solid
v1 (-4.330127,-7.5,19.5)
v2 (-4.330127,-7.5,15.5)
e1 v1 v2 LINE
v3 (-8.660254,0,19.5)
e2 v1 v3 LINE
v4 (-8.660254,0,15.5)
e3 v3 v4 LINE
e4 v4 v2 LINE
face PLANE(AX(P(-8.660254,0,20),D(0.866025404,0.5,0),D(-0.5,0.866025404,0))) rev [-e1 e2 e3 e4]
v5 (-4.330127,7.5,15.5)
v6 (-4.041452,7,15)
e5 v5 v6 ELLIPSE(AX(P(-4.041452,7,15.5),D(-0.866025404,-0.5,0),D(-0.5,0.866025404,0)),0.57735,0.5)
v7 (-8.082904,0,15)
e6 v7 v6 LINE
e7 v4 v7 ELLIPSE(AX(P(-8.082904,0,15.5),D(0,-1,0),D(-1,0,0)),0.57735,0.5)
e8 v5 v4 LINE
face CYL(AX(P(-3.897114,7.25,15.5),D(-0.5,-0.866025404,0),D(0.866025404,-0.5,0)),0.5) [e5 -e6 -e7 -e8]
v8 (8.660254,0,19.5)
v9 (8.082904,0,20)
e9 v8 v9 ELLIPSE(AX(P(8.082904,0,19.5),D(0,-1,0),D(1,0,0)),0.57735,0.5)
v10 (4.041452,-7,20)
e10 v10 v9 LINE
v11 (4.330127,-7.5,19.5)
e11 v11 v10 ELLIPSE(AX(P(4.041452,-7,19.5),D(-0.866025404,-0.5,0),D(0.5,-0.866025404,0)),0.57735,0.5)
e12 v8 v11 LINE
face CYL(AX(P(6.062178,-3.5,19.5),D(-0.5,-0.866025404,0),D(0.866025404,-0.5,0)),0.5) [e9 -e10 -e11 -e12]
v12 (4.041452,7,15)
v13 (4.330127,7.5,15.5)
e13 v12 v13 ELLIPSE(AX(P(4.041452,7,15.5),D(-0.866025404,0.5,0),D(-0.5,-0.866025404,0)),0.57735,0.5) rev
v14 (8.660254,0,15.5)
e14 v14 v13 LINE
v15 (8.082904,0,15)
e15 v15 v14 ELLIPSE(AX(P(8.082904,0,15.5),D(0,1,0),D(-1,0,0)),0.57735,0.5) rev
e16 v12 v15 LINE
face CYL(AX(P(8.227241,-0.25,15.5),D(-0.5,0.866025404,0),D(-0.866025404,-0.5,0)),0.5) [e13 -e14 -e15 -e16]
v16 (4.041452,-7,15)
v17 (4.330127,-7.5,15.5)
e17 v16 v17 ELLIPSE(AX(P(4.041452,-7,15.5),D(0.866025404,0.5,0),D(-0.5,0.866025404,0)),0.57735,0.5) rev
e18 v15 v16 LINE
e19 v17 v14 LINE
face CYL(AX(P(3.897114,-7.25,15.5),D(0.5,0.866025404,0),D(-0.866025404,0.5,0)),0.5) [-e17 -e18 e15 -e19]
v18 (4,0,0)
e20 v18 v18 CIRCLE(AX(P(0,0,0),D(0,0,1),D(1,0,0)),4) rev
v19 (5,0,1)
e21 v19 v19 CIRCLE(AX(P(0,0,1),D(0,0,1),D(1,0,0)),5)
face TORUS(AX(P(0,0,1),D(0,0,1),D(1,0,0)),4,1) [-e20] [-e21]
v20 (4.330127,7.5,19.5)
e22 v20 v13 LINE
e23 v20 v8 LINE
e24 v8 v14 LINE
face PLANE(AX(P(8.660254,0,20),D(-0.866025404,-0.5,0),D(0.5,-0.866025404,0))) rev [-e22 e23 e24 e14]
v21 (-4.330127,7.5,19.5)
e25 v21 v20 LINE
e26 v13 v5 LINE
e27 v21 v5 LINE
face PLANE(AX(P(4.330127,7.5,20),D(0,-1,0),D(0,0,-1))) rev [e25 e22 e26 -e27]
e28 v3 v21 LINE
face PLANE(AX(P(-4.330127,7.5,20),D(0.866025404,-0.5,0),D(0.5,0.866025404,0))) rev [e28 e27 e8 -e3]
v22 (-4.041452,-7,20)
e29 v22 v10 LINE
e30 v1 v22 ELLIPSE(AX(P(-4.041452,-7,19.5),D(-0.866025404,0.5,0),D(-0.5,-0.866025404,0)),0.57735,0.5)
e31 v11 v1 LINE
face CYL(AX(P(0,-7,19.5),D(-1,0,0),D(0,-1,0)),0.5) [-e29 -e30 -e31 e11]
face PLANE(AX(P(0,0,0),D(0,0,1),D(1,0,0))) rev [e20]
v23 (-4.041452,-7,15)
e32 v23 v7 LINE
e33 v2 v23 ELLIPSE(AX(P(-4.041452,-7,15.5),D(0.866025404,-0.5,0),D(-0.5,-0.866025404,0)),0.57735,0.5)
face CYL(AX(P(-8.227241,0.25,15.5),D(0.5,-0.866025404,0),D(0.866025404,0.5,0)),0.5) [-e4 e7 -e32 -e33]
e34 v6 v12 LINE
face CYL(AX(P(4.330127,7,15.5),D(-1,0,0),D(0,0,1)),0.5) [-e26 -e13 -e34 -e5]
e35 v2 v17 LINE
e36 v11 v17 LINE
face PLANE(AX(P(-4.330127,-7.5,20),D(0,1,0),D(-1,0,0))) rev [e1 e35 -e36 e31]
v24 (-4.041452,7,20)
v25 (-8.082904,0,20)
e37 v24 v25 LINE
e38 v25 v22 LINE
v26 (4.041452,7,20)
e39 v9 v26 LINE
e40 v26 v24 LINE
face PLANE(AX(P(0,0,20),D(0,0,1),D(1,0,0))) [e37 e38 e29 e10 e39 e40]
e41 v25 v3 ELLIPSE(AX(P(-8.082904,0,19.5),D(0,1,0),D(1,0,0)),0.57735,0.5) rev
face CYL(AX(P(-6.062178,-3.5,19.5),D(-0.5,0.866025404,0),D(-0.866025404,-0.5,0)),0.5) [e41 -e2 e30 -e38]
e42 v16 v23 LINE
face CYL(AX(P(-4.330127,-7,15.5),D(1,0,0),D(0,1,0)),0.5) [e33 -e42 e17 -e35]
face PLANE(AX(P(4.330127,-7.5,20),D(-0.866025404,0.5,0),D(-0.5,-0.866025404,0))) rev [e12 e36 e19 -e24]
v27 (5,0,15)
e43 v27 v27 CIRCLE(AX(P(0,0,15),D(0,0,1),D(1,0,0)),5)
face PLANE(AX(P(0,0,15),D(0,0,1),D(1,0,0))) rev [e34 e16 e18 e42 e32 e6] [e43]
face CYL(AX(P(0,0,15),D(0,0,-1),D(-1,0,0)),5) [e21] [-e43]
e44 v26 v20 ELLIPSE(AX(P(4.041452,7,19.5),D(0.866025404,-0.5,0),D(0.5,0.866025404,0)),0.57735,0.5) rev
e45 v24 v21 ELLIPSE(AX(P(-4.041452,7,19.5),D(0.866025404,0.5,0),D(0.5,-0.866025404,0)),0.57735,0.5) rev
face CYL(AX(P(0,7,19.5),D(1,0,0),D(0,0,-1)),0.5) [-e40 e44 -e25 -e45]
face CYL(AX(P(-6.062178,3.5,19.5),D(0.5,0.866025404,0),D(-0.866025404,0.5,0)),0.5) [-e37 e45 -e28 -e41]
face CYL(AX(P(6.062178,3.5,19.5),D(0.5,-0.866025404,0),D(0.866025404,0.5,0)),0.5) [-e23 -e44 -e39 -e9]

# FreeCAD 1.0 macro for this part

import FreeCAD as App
import Part
import Sketcher
from FreeCAD import Vector
Q = App.Units.Quantity


def edges_at(feature, points):
    """Names of the edges that pass closest to the given points."""
    edges = feature.Shape.Edges
    near = lambda p: min(range(len(edges)), key=lambda i: edges[i].distToShape(Part.Vertex(*p))[0])
    return sorted({f"Edge{near(p) + 1}" for p in points})

doc = App.newDocument("Part")
body = doc.addObject("PartDesign::Body", "Body")

# Sketch on XY plane
sketch1 = body.newObject("Sketcher::SketchObject", "Sketch")
sketch1.AttachmentSupport = (doc.getObject("XY_Plane"), [""])
sketch1.MapMode = "FlatFace"
sketch1.addGeometry(Part.Circle(Vector(0, 0, 0), Vector(0, 0, 1), 5), False)
sketch1.addConstraint(Sketcher.Constraint("Coincident", 0, 3, -1, 1))
sketch1.addConstraint(Sketcher.Constraint("Diameter", 0, 10.0))
pad1 = body.newObject("PartDesign::Pad", "Pad")
pad1.Profile = sketch1
pad1.Length = 15

# Sketch on XY plane
sketch2 = body.newObject("Sketcher::SketchObject", "Sketch001")
sketch2.AttachmentSupport = (doc.getObject("XY_Plane"), [""])
sketch2.MapMode = "FlatFace"
sketch2.AttachmentOffset = App.Placement(Vector(0, 0, 15), App.Rotation())
sketch2.addGeometry(Part.LineSegment(Vector(4, -8, 0), Vector(9, 0, 0)), False)
sketch2.addGeometry(Part.LineSegment(Vector(9, 0, 0), Vector(4, 8, 0)), False)
sketch2.addGeometry(Part.LineSegment(Vector(4, 8, 0), Vector(-4, 8, 0)), False)
sketch2.addGeometry(Part.LineSegment(Vector(-4, 8, 0), Vector(-9, 0, 0)), False)
sketch2.addGeometry(Part.LineSegment(Vector(-9, 0, 0), Vector(-4, -8, 0)), False)
sketch2.addGeometry(Part.LineSegment(Vector(-4, -8, 0), Vector(4, -8, 0)), False)
sketch2.addConstraint(Sketcher.Constraint("Coincident", 0, 2, 1, 1))
sketch2.addConstraint(Sketcher.Constraint("Coincident", 1, 2, 2, 1))
sketch2.addConstraint(Sketcher.Constraint("Coincident", 2, 2, 3, 1))
sketch2.addConstraint(Sketcher.Constraint("Coincident", 3, 2, 4, 1))
sketch2.addConstraint(Sketcher.Constraint("Coincident", 4, 2, 5, 1))
sketch2.addConstraint(Sketcher.Constraint("Coincident", 5, 2, 0, 1))
sketch2.addConstraint(Sketcher.Constraint("Horizontal", 2))
sketch2.addConstraint(Sketcher.Constraint("Horizontal", 5))
sketch2.addConstraint(Sketcher.Constraint("Symmetric", 0, 2, 3, 2, -1, 1))
sketch2.addConstraint(Sketcher.Constraint("Symmetric", 1, 2, 4, 2, -1, 1))
sketch2.addConstraint(Sketcher.Constraint("PointOnObject", 0, 2, -1))
sketch2.addConstraint(Sketcher.Constraint("Parallel", 0, 3))
sketch2.addConstraint(Sketcher.Constraint("Vertical", 2, 2, 4, 2))
sketch2.addConstraint(Sketcher.Constraint("Angle", 0, Q("60 deg")))
sketch2.addConstraint(Sketcher.Constraint("DistanceY", 4, 2, 2, 2, 15.0))
sketch2.addConstraint(Sketcher.Constraint("DistanceX", 2, 2, 2, 1, 8.660254))
pad2 = body.newObject("PartDesign::Pad", "Pad001")
pad2.Profile = sketch2
pad2.Length = 5
doc.recompute()

fillet = body.newObject("PartDesign::Fillet", "Fillet")
fillet.Base = (pad2, edges_at(pad2, [
    (0, -7.5, 15),
    (6.495, -3.75, 15),
    (6.495, 3.75, 15),
    (0, 7.5, 15),
    (-6.495, 3.75, 15),
    (-6.495, -3.75, 15),
    (0, -7.5, 20),
    (6.495, -3.75, 20),
    (6.495, 3.75, 20),
    (0, 7.5, 20),
    (-6.495, 3.75, 20),
    (-6.495, -3.75, 20),
]))
fillet.Radius = 0.5
doc.recompute()

fillet2 = body.newObject("PartDesign::Fillet", "Fillet001")
fillet2.Base = (fillet, edges_at(fillet, [(-5, 0, 0)]))
fillet2.Radius = 1

doc.recompute()
